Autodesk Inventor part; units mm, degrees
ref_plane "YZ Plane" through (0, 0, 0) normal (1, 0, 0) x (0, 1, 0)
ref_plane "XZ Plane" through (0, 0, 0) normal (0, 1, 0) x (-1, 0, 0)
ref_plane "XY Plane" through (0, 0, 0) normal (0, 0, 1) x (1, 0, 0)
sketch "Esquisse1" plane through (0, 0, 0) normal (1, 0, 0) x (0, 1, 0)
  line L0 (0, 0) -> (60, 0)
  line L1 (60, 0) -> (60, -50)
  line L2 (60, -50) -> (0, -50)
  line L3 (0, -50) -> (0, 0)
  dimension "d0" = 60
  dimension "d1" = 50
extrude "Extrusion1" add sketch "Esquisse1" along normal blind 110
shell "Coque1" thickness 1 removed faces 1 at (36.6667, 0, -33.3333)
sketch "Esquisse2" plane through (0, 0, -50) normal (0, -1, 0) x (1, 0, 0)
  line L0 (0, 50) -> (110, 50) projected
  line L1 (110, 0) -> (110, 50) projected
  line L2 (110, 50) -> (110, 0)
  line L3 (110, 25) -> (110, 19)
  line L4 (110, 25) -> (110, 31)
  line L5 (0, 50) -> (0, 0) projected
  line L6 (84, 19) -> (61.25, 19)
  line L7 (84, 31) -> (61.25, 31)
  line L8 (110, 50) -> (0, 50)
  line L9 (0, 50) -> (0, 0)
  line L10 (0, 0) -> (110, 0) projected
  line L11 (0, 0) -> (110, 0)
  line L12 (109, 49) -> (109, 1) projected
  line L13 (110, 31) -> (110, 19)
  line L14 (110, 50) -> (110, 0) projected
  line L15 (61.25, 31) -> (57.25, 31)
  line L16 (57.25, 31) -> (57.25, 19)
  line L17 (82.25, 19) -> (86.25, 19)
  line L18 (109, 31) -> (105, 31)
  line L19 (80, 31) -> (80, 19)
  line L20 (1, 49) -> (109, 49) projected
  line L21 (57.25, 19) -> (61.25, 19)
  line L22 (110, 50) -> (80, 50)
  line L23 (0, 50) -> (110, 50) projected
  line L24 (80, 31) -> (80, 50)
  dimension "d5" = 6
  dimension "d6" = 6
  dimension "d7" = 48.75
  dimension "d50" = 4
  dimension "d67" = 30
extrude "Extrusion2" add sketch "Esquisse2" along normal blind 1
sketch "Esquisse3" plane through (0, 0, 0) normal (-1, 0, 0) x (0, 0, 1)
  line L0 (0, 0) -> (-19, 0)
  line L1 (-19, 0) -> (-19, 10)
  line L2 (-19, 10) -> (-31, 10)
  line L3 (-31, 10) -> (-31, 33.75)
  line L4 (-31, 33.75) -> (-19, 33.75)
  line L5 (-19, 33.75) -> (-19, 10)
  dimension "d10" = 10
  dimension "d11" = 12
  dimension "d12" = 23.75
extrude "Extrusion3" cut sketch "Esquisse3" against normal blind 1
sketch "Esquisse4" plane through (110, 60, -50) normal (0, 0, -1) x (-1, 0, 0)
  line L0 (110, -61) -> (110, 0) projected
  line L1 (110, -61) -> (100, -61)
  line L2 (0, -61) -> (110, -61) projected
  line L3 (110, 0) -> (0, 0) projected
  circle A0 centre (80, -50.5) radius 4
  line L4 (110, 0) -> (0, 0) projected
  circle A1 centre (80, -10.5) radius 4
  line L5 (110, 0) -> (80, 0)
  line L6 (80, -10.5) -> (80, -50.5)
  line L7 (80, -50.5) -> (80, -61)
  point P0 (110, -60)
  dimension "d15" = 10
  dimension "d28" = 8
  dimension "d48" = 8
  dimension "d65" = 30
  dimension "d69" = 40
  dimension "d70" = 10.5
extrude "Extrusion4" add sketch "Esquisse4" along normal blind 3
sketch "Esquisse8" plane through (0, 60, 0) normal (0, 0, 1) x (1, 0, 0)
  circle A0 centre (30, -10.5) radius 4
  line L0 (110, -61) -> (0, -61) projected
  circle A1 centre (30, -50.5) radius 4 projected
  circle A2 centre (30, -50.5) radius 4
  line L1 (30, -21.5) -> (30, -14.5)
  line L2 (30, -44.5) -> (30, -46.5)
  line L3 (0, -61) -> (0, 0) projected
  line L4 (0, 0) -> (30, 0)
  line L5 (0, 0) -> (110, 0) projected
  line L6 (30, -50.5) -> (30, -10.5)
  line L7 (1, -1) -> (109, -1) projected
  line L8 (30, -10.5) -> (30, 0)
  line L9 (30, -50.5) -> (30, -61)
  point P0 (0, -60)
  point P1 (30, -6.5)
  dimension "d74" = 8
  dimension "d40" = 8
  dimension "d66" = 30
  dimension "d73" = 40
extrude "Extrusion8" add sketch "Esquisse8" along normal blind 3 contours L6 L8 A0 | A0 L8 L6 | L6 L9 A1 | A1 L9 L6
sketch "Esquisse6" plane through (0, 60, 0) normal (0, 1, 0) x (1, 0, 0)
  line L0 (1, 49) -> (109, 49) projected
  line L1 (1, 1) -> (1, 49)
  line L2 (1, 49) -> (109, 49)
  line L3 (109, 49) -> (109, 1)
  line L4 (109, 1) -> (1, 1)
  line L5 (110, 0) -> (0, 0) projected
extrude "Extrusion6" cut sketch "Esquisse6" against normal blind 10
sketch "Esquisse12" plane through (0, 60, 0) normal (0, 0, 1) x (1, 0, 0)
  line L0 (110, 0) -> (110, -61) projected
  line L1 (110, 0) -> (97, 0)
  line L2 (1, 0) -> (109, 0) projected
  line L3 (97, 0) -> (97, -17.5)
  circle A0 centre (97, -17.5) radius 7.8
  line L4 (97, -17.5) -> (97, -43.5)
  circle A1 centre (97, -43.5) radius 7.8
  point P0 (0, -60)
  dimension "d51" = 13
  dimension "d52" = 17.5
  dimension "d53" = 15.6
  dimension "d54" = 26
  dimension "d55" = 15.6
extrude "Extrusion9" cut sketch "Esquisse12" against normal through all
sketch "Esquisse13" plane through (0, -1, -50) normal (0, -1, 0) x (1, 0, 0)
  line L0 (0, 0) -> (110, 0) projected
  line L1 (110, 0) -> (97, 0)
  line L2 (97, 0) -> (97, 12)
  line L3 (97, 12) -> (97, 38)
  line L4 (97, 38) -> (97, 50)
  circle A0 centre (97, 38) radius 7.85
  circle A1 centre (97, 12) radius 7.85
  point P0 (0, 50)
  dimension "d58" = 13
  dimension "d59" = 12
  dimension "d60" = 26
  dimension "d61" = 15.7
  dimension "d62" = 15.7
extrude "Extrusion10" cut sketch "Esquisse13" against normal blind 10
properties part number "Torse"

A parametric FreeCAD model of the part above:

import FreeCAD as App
import Part
import Sketcher


def faces_at(feature, points):
    """Names of the faces that lie closest to the given points."""
    faces = feature.Shape.Faces
    near = lambda p: min(range(len(faces)), key=lambda i: faces[i].distToShape(Part.Vertex(*p))[0])
    return sorted({f"Face{near(p) + 1}" for p in points})

doc = App.newDocument("Part")
body = doc.addObject("PartDesign::Body", "Body")

# Sketch on YZ plane
sketch1 = body.newObject("Sketcher::SketchObject", "Sketch")
sketch1.AttachmentSupport = (doc.getObject("YZ_Plane"), [""])
sketch1.MapMode = "FlatFace"
sketch1.addGeometry(Part.LineSegment(App.Vector(60, 0, 0), App.Vector(0, 0, 0)), False)
sketch1.addGeometry(Part.LineSegment(App.Vector(0, 0, 0), App.Vector(0, -50, 0)), False)
sketch1.addGeometry(Part.LineSegment(App.Vector(0, -50, 0), App.Vector(60, -50, 0)), False)
sketch1.addGeometry(Part.LineSegment(App.Vector(60, -50, 0), App.Vector(60, 0, 0)), False)
sketch1.addConstraint(Sketcher.Constraint("Coincident", 0, 2, 1, 1))
sketch1.addConstraint(Sketcher.Constraint("Coincident", 1, 2, 2, 1))
sketch1.addConstraint(Sketcher.Constraint("Coincident", 2, 2, 3, 1))
sketch1.addConstraint(Sketcher.Constraint("Coincident", 3, 2, 0, 1))
sketch1.addConstraint(Sketcher.Constraint("Horizontal", 0))
sketch1.addConstraint(Sketcher.Constraint("Vertical", 1))
sketch1.addConstraint(Sketcher.Constraint("Horizontal", 2))
sketch1.addConstraint(Sketcher.Constraint("Vertical", 3))
sketch1.addConstraint(Sketcher.Constraint("Coincident", 0, 2, -1, 1))
sketch1.addConstraint(Sketcher.Constraint("DistanceX", 0, 2, 0, 1, 60.0))
sketch1.addConstraint(Sketcher.Constraint("DistanceY", 1, 2, 1, 1, 50.0))
pad1 = body.newObject("PartDesign::Pad", "Pad")
pad1.Profile = sketch1
pad1.Length = 110
doc.recompute()

thickness = body.newObject("PartDesign::Thickness", "Thickness")
thickness.Base = (pad1, faces_at(pad1, [(36.667, 0, -33.333)]))
thickness.Value = 1
thickness.Reversed = True
thickness.Join = "Intersection"

# Sketch on XZ plane
sketch2 = body.newObject("Sketcher::SketchObject", "Sketch001")
sketch2.AttachmentSupport = (doc.getObject("XZ_Plane"), [""])
sketch2.MapMode = "FlatFace"
sketch2.addGeometry(Part.LineSegment(App.Vector(80, 0, 0), App.Vector(0, 0, 0)), False)
sketch2.addGeometry(Part.LineSegment(App.Vector(0, 0, 0), App.Vector(0, -50, 0)), False)
sketch2.addGeometry(Part.LineSegment(App.Vector(0, -50, 0), App.Vector(110, -50, 0)), False)
sketch2.addGeometry(Part.LineSegment(App.Vector(110, -50, 0), App.Vector(110, 0, 0)), False)
sketch2.addGeometry(Part.LineSegment(App.Vector(110, 0, 0), App.Vector(80, 0, 0)), False)
sketch2.addGeometry(Part.LineSegment(App.Vector(57, -19, 0), App.Vector(80, -19, 0)), False)
sketch2.addGeometry(Part.LineSegment(App.Vector(80, -19, 0), App.Vector(80, -31, 0)), False)
sketch2.addGeometry(Part.LineSegment(App.Vector(80, -31, 0), App.Vector(57, -31, 0)), False)
sketch2.addGeometry(Part.LineSegment(App.Vector(57, -31, 0), App.Vector(57, -19, 0)), False)
sketch2.addConstraint(Sketcher.Constraint("Coincident", 0, 2, 1, 1))
sketch2.addConstraint(Sketcher.Constraint("Coincident", 1, 2, 2, 1))
sketch2.addConstraint(Sketcher.Constraint("Coincident", 2, 2, 3, 1))
sketch2.addConstraint(Sketcher.Constraint("Coincident", 3, 2, 4, 1))
sketch2.addConstraint(Sketcher.Constraint("Coincident", 4, 2, 0, 1))
sketch2.addConstraint(Sketcher.Constraint("Coincident", 5, 2, 6, 1))
sketch2.addConstraint(Sketcher.Constraint("Coincident", 6, 2, 7, 1))
sketch2.addConstraint(Sketcher.Constraint("Coincident", 7, 2, 8, 1))
sketch2.addConstraint(Sketcher.Constraint("Coincident", 8, 2, 5, 1))
sketch2.addConstraint(Sketcher.Constraint("Horizontal", 0))
sketch2.addConstraint(Sketcher.Constraint("Vertical", 1))
sketch2.addConstraint(Sketcher.Constraint("Horizontal", 2))
sketch2.addConstraint(Sketcher.Constraint("Vertical", 3))
sketch2.addConstraint(Sketcher.Constraint("Horizontal", 4))
sketch2.addConstraint(Sketcher.Constraint("Horizontal", 5))
sketch2.addConstraint(Sketcher.Constraint("Vertical", 6))
sketch2.addConstraint(Sketcher.Constraint("Horizontal", 7))
sketch2.addConstraint(Sketcher.Constraint("Vertical", 8))
sketch2.addConstraint(Sketcher.Constraint("Coincident", 0, 2, -1, 1))
sketch2.addConstraint(Sketcher.Constraint("Vertical", 4, 2, 5, 2))
sketch2.addConstraint(Sketcher.Constraint("DistanceX", 4, 2, 4, 1, 30.0))
sketch2.addConstraint(Sketcher.Constraint("DistanceX", 0, 2, 0, 1, 80.0))
sketch2.addConstraint(Sketcher.Constraint("DistanceY", 1, 2, 1, 1, 50.0))
sketch2.addConstraint(Sketcher.Constraint("DistanceY", 6, 2, 6, 1, 12.0))
sketch2.addConstraint(Sketcher.Constraint("DistanceY", 5, 2, -1, 1, 19.0))
sketch2.addConstraint(Sketcher.Constraint("DistanceX", 5, 1, 5, 2, 22.75))
pad2 = body.newObject("PartDesign::Pad", "Pad001")
pad2.Profile = sketch2
pad2.Length = 1

# Sketch on YZ plane
sketch3 = body.newObject("Sketcher::SketchObject", "Sketch002")
sketch3.AttachmentSupport = (doc.getObject("YZ_Plane"), [""])
sketch3.MapMode = "FlatFace"
sketch3.addGeometry(Part.LineSegment(App.Vector(10, -31, 0), App.Vector(10, -19, 0)), False)
sketch3.addGeometry(Part.LineSegment(App.Vector(10, -19, 0), App.Vector(34, -19, 0)), False)
sketch3.addGeometry(Part.LineSegment(App.Vector(34, -19, 0), App.Vector(34, -31, 0)), False)
sketch3.addGeometry(Part.LineSegment(App.Vector(34, -31, 0), App.Vector(10, -31, 0)), False)
sketch3.addConstraint(Sketcher.Constraint("Coincident", 0, 2, 1, 1))
sketch3.addConstraint(Sketcher.Constraint("Coincident", 1, 2, 2, 1))
sketch3.addConstraint(Sketcher.Constraint("Coincident", 2, 2, 3, 1))
sketch3.addConstraint(Sketcher.Constraint("Coincident", 3, 2, 0, 1))
sketch3.addConstraint(Sketcher.Constraint("Vertical", 0))
sketch3.addConstraint(Sketcher.Constraint("Horizontal", 1))
sketch3.addConstraint(Sketcher.Constraint("Vertical", 2))
sketch3.addConstraint(Sketcher.Constraint("Horizontal", 3))
sketch3.addConstraint(Sketcher.Constraint("DistanceY", 0, 1, 0, 2, 12.0))
sketch3.addConstraint(Sketcher.Constraint("DistanceX", -1, 1, 0, 2, 10.0))
sketch3.addConstraint(Sketcher.Constraint("DistanceX", 1, 1, 1, 2, 23.75))
sketch3.addConstraint(Sketcher.Constraint("DistanceY", 0, 2, -1, 1, 19.0))
pocket1 = body.newObject("PartDesign::Pocket", "Pocket")
pocket1.Profile = sketch3
pocket1.Length = 1
pocket1.Reversed = True

# Sketch on XY plane
sketch4 = body.newObject("Sketcher::SketchObject", "Sketch003")
sketch4.AttachmentSupport = (doc.getObject("XY_Plane"), [""])
sketch4.MapMode = "FlatFace"
sketch4.AttachmentOffset = App.Placement(App.Vector(0, 0, -50), App.Rotation())
sketch4.addGeometry(Part.Circle(App.Vector(30, 9.5, 0), App.Vector(0, 0, 1), 4), False)
sketch4.addGeometry(Part.Circle(App.Vector(30, 49.5, 0), App.Vector(0, 0, 1), 4), False)
sketch4.addConstraint(Sketcher.Constraint("Equal", 0, 1))
sketch4.addConstraint(Sketcher.Constraint("Vertical", 0, 3, 1, 3))
sketch4.addConstraint(Sketcher.Constraint("Diameter", 0, 8.0))
sketch4.addConstraint(Sketcher.Constraint("DistanceX", -1, 1, 0, 3, 30.0))
sketch4.addConstraint(Sketcher.Constraint("DistanceY", 0, 3, 1, 3, 40.0))
sketch4.addConstraint(Sketcher.Constraint("DistanceY", -1, 1, 0, 3, 9.5))
pad3 = body.newObject("PartDesign::Pad", "Pad002")
pad3.Profile = sketch4
pad3.Length = 3
pad3.Reversed = True

# Sketch on XY plane
sketch5 = body.newObject("Sketcher::SketchObject", "Sketch004")
sketch5.AttachmentSupport = (doc.getObject("XY_Plane"), [""])
sketch5.MapMode = "FlatFace"
sketch5.addGeometry(Part.Circle(App.Vector(30, 49.5, 0), App.Vector(0, 0, 1), 4), False)
sketch5.addGeometry(Part.Circle(App.Vector(30, 9.5, 0), App.Vector(0, 0, 1), 4), False)
sketch5.addConstraint(Sketcher.Constraint("Equal", 0, 1))
sketch5.addConstraint(Sketcher.Constraint("Vertical", 0, 3, 1, 3))
sketch5.addConstraint(Sketcher.Constraint("Diameter", 0, 8.0))
sketch5.addConstraint(Sketcher.Constraint("DistanceX", -1, 1, 0, 3, 30.0))
sketch5.addConstraint(Sketcher.Constraint("DistanceY", 1, 3, 0, 3, 40.0))
sketch5.addConstraint(Sketcher.Constraint("DistanceY", -1, 1, 0, 3, 49.5))
pad4 = body.newObject("PartDesign::Pad", "Pad003")
pad4.Profile = sketch5
pad4.Length = 3

# Sketch on XZ plane
sketch6 = body.newObject("Sketcher::SketchObject", "Sketch005")
sketch6.AttachmentSupport = (doc.getObject("XZ_Plane"), [""])
sketch6.MapMode = "FlatFace"
sketch6.AttachmentOffset = App.Placement(App.Vector(0, 0, -60), App.Rotation())
sketch6.addGeometry(Part.LineSegment(App.Vector(109, -49, 0), App.Vector(1, -49, 0)), False)
sketch6.addGeometry(Part.LineSegment(App.Vector(1, -49, 0), App.Vector(1, -1, 0)), False)
sketch6.addGeometry(Part.LineSegment(App.Vector(1, -1, 0), App.Vector(109, -1, 0)), False)
sketch6.addGeometry(Part.LineSegment(App.Vector(109, -1, 0), App.Vector(109, -49, 0)), False)
sketch6.addConstraint(Sketcher.Constraint("Coincident", 0, 2, 1, 1))
sketch6.addConstraint(Sketcher.Constraint("Coincident", 1, 2, 2, 1))
sketch6.addConstraint(Sketcher.Constraint("Coincident", 2, 2, 3, 1))
sketch6.addConstraint(Sketcher.Constraint("Coincident", 3, 2, 0, 1))
sketch6.addConstraint(Sketcher.Constraint("Horizontal", 0))
sketch6.addConstraint(Sketcher.Constraint("Vertical", 1))
sketch6.addConstraint(Sketcher.Constraint("Horizontal", 2))
sketch6.addConstraint(Sketcher.Constraint("Vertical", 3))
sketch6.addConstraint(Sketcher.Constraint("DistanceX", 0, 2, 0, 1, 108.0))
sketch6.addConstraint(Sketcher.Constraint("DistanceY", 1, 1, 1, 2, 48.0))
sketch6.addConstraint(Sketcher.Constraint("DistanceX", -1, 1, 0, 2, 1.0))
sketch6.addConstraint(Sketcher.Constraint("DistanceY", 0, 2, -1, 1, 49.0))
pocket2 = body.newObject("PartDesign::Pocket", "Pocket001")
pocket2.Profile = sketch6
pocket2.Length = 10
pocket2.Reversed = True

# Sketch on XY plane
sketch7 = body.newObject("Sketcher::SketchObject", "Sketch006")
sketch7.AttachmentSupport = (doc.getObject("XY_Plane"), [""])
sketch7.MapMode = "FlatFace"
sketch7.addGeometry(Part.Circle(App.Vector(97, 42, 0), App.Vector(0, 0, 1), 8), False)
sketch7.addGeometry(Part.Circle(App.Vector(97, 16, 0), App.Vector(0, 0, 1), 8), False)
sketch7.addConstraint(Sketcher.Constraint("Equal", 0, 1))
sketch7.addConstraint(Sketcher.Constraint("Vertical", 0, 3, 1, 3))
sketch7.addConstraint(Sketcher.Constraint("Diameter", 0, 15.6))
sketch7.addConstraint(Sketcher.Constraint("DistanceY", 1, 3, 0, 3, 26.0))
sketch7.addConstraint(Sketcher.Constraint("DistanceX", -1, 1, 0, 3, 97.0))
sketch7.addConstraint(Sketcher.Constraint("DistanceY", -1, 1, 0, 3, 42.5))
pocket3 = body.newObject("PartDesign::Pocket", "Pocket002")
pocket3.Profile = sketch7
pocket3.Type = "ThroughAll"

# Sketch on XZ plane
sketch8 = body.newObject("Sketcher::SketchObject", "Sketch007")
sketch8.AttachmentSupport = (doc.getObject("XZ_Plane"), [""])
sketch8.MapMode = "FlatFace"
sketch8.AttachmentOffset = App.Placement(App.Vector(0, 0, 1), App.Rotation())
sketch8.addGeometry(Part.Circle(App.Vector(97, -38, 0), App.Vector(0, 0, 1), 8), False)
sketch8.addGeometry(Part.Circle(App.Vector(97, -12, 0), App.Vector(0, 0, 1), 8), False)
sketch8.addConstraint(Sketcher.Constraint("Equal", 0, 1))
sketch8.addConstraint(Sketcher.Constraint("Vertical", 0, 3, 1, 3))
sketch8.addConstraint(Sketcher.Constraint("Diameter", 0, 15.7))
sketch8.addConstraint(Sketcher.Constraint("DistanceY", 1, 3, -1, 1, 12.0))
sketch8.addConstraint(Sketcher.Constraint("DistanceY", 0, 3, 1, 3, 26.0))
sketch8.addConstraint(Sketcher.Constraint("DistanceX", -1, 1, 0, 3, 97.0))
pocket4 = body.newObject("PartDesign::Pocket", "Pocket003")
pocket4.Profile = sketch8
pocket4.Length = 10

doc.recompute()
